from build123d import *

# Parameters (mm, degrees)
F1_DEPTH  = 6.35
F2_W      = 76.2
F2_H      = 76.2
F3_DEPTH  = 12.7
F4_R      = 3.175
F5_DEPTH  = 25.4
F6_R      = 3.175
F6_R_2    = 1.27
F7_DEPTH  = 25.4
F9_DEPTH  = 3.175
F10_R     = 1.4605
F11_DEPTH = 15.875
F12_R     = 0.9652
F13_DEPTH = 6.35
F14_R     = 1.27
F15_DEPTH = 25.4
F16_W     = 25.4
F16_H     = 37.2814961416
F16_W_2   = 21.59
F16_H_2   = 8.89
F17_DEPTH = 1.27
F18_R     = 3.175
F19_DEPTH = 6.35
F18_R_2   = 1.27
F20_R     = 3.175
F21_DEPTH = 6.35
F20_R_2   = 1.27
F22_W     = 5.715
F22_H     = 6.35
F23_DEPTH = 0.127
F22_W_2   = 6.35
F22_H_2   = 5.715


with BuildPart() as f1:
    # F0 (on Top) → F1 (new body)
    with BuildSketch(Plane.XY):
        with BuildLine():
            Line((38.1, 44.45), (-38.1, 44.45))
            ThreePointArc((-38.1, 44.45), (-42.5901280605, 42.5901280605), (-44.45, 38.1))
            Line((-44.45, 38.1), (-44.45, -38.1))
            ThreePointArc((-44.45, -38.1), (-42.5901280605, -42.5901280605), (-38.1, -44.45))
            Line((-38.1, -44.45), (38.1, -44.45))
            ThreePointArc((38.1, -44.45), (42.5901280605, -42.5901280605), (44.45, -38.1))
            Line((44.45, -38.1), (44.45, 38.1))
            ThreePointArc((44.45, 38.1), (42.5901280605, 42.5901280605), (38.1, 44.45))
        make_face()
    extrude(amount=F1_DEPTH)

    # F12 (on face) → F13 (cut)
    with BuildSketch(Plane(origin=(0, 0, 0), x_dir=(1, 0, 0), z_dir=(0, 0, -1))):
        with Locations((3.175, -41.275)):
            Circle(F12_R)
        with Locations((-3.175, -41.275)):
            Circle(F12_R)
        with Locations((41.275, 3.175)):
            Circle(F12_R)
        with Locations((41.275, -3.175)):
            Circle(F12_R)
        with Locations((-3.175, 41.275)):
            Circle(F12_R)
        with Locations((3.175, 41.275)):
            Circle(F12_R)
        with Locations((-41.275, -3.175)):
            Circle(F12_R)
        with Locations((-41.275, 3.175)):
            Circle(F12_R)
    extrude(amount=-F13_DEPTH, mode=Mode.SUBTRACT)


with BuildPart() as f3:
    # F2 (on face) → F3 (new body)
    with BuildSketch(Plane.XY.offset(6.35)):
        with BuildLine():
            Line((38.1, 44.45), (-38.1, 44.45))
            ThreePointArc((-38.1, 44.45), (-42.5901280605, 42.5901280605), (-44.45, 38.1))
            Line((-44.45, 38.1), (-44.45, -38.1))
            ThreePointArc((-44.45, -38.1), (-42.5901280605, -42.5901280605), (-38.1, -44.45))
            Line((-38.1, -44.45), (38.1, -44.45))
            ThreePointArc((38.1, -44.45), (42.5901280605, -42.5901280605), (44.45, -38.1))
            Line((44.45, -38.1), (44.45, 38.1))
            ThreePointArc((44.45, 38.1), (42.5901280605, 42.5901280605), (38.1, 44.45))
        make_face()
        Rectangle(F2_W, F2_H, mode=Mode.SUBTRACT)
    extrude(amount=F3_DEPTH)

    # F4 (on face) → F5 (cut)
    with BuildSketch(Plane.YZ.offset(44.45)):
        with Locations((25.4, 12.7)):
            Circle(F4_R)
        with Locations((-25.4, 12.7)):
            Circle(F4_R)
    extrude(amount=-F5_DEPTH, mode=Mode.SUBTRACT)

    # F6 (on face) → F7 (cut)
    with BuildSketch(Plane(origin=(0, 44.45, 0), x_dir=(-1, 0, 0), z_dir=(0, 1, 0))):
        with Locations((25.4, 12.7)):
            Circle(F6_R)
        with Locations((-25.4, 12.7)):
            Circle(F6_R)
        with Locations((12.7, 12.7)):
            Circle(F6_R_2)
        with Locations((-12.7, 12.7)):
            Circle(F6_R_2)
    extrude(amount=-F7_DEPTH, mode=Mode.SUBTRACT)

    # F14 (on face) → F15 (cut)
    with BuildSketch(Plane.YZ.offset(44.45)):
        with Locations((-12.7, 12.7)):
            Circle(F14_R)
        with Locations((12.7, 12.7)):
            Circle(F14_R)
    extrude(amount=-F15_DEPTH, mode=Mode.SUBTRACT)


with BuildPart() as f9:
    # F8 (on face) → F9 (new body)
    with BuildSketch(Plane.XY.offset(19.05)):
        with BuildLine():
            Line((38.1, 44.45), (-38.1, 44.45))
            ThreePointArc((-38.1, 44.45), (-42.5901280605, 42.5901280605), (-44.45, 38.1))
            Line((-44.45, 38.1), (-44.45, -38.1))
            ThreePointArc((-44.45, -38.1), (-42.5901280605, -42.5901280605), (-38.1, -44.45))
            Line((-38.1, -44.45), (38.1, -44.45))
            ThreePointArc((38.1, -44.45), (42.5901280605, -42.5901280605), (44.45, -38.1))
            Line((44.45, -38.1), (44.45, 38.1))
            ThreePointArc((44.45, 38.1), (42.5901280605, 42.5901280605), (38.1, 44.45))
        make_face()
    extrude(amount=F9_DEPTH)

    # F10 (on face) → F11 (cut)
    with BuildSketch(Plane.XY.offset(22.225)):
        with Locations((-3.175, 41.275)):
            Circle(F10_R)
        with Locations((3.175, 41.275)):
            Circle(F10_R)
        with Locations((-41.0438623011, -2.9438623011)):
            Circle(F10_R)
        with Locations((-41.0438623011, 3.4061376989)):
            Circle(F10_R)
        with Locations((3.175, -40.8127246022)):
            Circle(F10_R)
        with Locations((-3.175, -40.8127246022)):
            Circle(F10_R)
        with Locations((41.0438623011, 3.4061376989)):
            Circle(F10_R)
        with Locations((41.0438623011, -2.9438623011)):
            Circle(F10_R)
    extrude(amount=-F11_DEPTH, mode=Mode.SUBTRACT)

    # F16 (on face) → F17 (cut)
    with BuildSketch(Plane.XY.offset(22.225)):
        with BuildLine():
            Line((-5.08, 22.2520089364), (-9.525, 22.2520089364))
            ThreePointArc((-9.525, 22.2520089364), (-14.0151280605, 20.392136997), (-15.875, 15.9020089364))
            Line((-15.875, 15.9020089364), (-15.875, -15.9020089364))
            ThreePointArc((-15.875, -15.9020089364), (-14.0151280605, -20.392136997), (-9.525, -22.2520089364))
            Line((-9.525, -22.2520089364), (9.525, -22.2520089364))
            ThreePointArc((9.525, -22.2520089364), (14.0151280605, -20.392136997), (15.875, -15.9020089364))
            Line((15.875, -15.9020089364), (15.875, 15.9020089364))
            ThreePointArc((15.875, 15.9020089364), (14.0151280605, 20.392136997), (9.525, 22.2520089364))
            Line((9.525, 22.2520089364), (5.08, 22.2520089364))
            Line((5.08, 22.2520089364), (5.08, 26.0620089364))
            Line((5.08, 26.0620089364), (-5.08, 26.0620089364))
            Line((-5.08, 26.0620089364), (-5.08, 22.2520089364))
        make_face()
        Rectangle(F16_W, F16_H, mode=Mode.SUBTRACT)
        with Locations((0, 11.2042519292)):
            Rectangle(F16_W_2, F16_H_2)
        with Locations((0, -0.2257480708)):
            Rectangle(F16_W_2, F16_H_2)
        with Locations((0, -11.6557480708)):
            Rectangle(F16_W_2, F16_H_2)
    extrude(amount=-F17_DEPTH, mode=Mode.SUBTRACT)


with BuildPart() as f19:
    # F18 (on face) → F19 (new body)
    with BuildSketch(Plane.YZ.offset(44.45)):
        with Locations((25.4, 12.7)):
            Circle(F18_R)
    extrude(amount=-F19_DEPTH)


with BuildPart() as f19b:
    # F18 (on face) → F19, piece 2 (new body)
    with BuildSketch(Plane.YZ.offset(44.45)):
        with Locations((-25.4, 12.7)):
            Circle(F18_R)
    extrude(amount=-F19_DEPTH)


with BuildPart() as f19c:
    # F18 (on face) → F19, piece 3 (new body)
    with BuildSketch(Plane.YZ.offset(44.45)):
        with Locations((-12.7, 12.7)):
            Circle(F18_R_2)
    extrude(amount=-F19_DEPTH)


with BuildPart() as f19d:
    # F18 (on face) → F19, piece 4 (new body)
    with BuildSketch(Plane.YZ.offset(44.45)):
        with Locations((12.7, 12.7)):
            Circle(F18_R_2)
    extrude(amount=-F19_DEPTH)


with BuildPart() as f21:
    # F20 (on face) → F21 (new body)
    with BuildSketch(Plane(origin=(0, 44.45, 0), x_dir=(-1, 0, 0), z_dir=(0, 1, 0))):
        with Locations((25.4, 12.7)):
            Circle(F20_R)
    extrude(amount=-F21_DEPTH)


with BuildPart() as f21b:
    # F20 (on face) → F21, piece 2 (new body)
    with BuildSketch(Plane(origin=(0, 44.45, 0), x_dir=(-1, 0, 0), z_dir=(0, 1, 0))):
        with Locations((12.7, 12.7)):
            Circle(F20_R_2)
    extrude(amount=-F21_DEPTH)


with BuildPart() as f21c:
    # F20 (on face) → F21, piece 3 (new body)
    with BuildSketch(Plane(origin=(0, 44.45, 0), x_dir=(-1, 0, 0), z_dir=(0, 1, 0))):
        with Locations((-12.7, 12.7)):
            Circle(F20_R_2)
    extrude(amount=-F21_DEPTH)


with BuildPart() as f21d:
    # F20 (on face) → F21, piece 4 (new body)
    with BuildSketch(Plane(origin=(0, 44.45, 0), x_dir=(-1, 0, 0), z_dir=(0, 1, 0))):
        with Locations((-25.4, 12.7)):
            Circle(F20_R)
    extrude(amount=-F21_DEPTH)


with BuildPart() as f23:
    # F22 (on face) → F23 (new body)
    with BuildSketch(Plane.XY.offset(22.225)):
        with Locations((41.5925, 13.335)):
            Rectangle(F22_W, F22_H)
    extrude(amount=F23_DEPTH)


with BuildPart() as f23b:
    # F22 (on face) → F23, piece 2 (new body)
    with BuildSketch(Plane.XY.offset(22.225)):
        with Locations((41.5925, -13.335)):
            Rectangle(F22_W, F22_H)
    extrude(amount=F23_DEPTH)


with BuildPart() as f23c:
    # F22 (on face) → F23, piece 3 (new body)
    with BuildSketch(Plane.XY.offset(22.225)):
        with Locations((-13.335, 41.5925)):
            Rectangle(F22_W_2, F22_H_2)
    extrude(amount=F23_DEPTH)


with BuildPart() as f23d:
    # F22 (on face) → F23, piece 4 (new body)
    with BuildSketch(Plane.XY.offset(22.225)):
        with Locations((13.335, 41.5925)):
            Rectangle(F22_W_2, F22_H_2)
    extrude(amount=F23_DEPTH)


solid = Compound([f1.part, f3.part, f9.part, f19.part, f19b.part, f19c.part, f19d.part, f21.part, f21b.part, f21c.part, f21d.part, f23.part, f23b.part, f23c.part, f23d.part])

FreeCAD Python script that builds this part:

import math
import FreeCAD as App
import Part
import Sketcher

V = App.Vector
Q = App.Units.Quantity


def add_polygon(sketch, points):
    """Adds a closed chain of lines whose ends are joined by coincident constraints."""
    first, n = sketch.GeometryCount, len(points)
    for a, b in zip(points, points[1:] + points[:1]):
        sketch.addGeometry(Part.LineSegment(App.Vector(*a, 0), App.Vector(*b, 0)), False)
    for i in range(n):
        sketch.addConstraint(Sketcher.Constraint("Coincident", first + i, 2, first + (i + 1) % n, 1))

doc = App.newDocument("Part")
body = doc.addObject("PartDesign::Body", "Body")

sketch1 = body.newObject("Sketcher::SketchObject", "Sketch")
sketch1.AttachmentSupport = (doc.getObject("XY_Plane"), [""])
sketch1.MapMode = "FlatFace"
sketch1.addGeometry([
    Part.LineSegment(V(38.1, 44.45, 0), V(-38.1, 44.45, 0)),
    Part.ArcOfCircle(Part.Circle(V(-38.1, 38.1, 0), V(0, 0, 1), 6.35), math.radians(90), math.radians(180)),
    Part.LineSegment(V(-44.45, 38.1, 0), V(-44.45, -38.1, 0)),
    Part.ArcOfCircle(Part.Circle(V(-38.1, -38.1, 0), V(0, 0, 1), 6.35), math.radians(180), math.radians(270)),
    Part.LineSegment(V(-38.1, -44.45, 0), V(38.1, -44.45, 0)),
    Part.ArcOfCircle(Part.Circle(V(38.1, -38.1, 0), V(0, 0, 1), 6.35), math.radians(-90), math.radians(0)),
    Part.LineSegment(V(44.45, -38.1, 0), V(44.45, 38.1, 0)),
    Part.ArcOfCircle(Part.Circle(V(38.1, 38.1, 0), V(0, 0, 1), 6.35), math.radians(0), math.radians(90)),
], False)
sketch1.addConstraint([
    Sketcher.Constraint("Tangent", 0, 2, 1, 1),
    Sketcher.Constraint("Tangent", 1, 2, 2, 1),
    Sketcher.Constraint("Tangent", 2, 2, 3, 1),
    Sketcher.Constraint("Tangent", 3, 2, 4, 1),
    Sketcher.Constraint("Tangent", 4, 2, 5, 1),
    Sketcher.Constraint("Tangent", 5, 2, 6, 1),
    Sketcher.Constraint("Tangent", 6, 2, 7, 1),
    Sketcher.Constraint("Tangent", 7, 2, 0, 1),
    Sketcher.Constraint("Horizontal", 0),
    Sketcher.Constraint("Vertical", 2),
    Sketcher.Constraint("Horizontal", 4),
    Sketcher.Constraint("Vertical", 6),
    Sketcher.Constraint("Equal", 1, 3),
    Sketcher.Constraint("Equal", 3, 5),
    Sketcher.Constraint("Equal", 5, 7),
    Sketcher.Constraint("Symmetric", 1, 3, 5, 3, -1, 1),
    Sketcher.Constraint("Equal", 4, 2),
    Sketcher.Constraint("DistanceX", 0, 2, 0, 1, Q("3 in")),
    Sketcher.Constraint("Radius", 1, Q("0.25 in")),
])
pad1 = body.newObject("PartDesign::Pad", "Pad")
pad1.Profile = sketch1
pad1.Length = Q("0.25 in")

sketch2 = body.newObject("Sketcher::SketchObject", "Sketch001")
sketch2.AttachmentSupport = (doc.getObject("XY_Plane"), [""])
sketch2.MapMode = "FlatFace"
sketch2.addGeometry([
    Part.Circle(V(3.175, 41.275, 0), V(0, 0, 1), 0.9652),
    Part.Circle(V(-3.175, 41.275, 0), V(0, 0, 1), 0.9652),
    Part.Circle(V(41.275, -3.175, 0), V(0, 0, 1), 0.9652),
    Part.Circle(V(41.275, 3.175, 0), V(0, 0, 1), 0.9652),
    Part.Circle(V(-3.175, -41.275, 0), V(0, 0, 1), 0.9652),
    Part.Circle(V(3.175, -41.275, 0), V(0, 0, 1), 0.9652),
    Part.Circle(V(-41.275, 3.175, 0), V(0, 0, 1), 0.9652),
    Part.Circle(V(-41.275, -3.175, 0), V(0, 0, 1), 0.9652),
], False)
sketch2.addConstraint([
    Sketcher.Constraint("Equal", 0, 1),
    Sketcher.Constraint("Equal", 1, 2),
    Sketcher.Constraint("Equal", 2, 3),
    Sketcher.Constraint("Equal", 3, 4),
    Sketcher.Constraint("Equal", 4, 5),
    Sketcher.Constraint("Equal", 5, 6),
    Sketcher.Constraint("Equal", 6, 7),
    Sketcher.Constraint("Symmetric", 0, 3, 4, 3, -1, 1),
    Sketcher.Constraint("Symmetric", 1, 3, 5, 3, -1, 1),
    Sketcher.Constraint("Symmetric", 2, 3, 6, 3, -1, 1),
    Sketcher.Constraint("Symmetric", 3, 3, 7, 3, -1, 1),
    Sketcher.Constraint("Symmetric", 0, 3, 1, 3, -2),
    Sketcher.Constraint("Symmetric", 3, 3, 6, 3, -2),
    Sketcher.Constraint("Diameter", 0, Q("0.076 in")),
    Sketcher.Constraint("DistanceX", 0, 3, 2, 3, Q("1.5 in")),
    Sketcher.Constraint("DistanceY", 3, 3, 0, 3, Q("1.5 in")),
    Sketcher.Constraint("DistanceX", 1, 3, 0, 3, Q("0.25 in")),
    Sketcher.Constraint("DistanceY", 2, 3, 0, 3, Q("1.75 in")),
])
pocket1 = body.newObject("PartDesign::Pocket", "Pocket")
pocket1.Profile = sketch2
pocket1.Length = Q("0.25 in")
pocket1.Reversed = True
body2 = doc.addObject("PartDesign::Body", "Body001")

sketch3 = body2.newObject("Sketcher::SketchObject", "Sketch002")
sketch3.AttachmentSupport = (doc.getObject("XY_Plane001"), [""])
sketch3.MapMode = "FlatFace"
sketch3.AttachmentOffset = App.Placement(V(0, 0, 0.25 * 25.4), App.Rotation())
sketch3.addGeometry(Part.LineSegment(V(38.1, 44.45, 0), V(-38.1, 44.45, 0)), False)
sketch3.addGeometry(Part.ArcOfCircle(Part.Circle(V(-38.1, 38.1, 0), V(0, 0, 1), 6.35), math.radians(90), math.radians(180)), False)
sketch3.addGeometry(Part.LineSegment(V(-44.45, 38.1, 0), V(-44.45, -38.1, 0)), False)
sketch3.addGeometry(Part.ArcOfCircle(Part.Circle(V(-38.1, -38.1, 0), V(0, 0, 1), 6.35), math.radians(180), math.radians(270)), False)
sketch3.addGeometry(Part.LineSegment(V(-38.1, -44.45, 0), V(38.1, -44.45, 0)), False)
sketch3.addGeometry(Part.ArcOfCircle(Part.Circle(V(38.1, -38.1, 0), V(0, 0, 1), 6.35), math.radians(-90), math.radians(0)), False)
sketch3.addGeometry(Part.LineSegment(V(44.45, -38.1, 0), V(44.45, 38.1, 0)), False)
sketch3.addGeometry(Part.ArcOfCircle(Part.Circle(V(38.1, 38.1, 0), V(0, 0, 1), 6.35), math.radians(0), math.radians(90)), False)
add_polygon(sketch3, [(38.1, -38.1), (-38.1, -38.1), (-38.1, 38.1), (38.1, 38.1)])
sketch3.addConstraint([
    Sketcher.Constraint("Tangent", 0, 2, 1, 1),
    Sketcher.Constraint("Tangent", 1, 2, 2, 1),
    Sketcher.Constraint("Tangent", 2, 2, 3, 1),
    Sketcher.Constraint("Tangent", 3, 2, 4, 1),
    Sketcher.Constraint("Tangent", 4, 2, 5, 1),
    Sketcher.Constraint("Tangent", 5, 2, 6, 1),
    Sketcher.Constraint("Tangent", 6, 2, 7, 1),
    Sketcher.Constraint("Tangent", 7, 2, 0, 1),
    Sketcher.Constraint("Horizontal", 0),
    Sketcher.Constraint("Vertical", 2),
    Sketcher.Constraint("Horizontal", 4),
    Sketcher.Constraint("Vertical", 6),
    Sketcher.Constraint("Horizontal", 8),
    Sketcher.Constraint("Vertical", 9),
    Sketcher.Constraint("Horizontal", 10),
    Sketcher.Constraint("Vertical", 11),
    Sketcher.Constraint("Coincident", 8, 2, 3, 3),
    Sketcher.Constraint("Coincident", 9, 2, 1, 3),
    Sketcher.Constraint("Coincident", 10, 2, 7, 3),
    Sketcher.Constraint("Equal", 3, 5),
    Sketcher.Constraint("Symmetric", 1, 3, 5, 3, -1, 1),
    Sketcher.Constraint("Equal", 10, 2),
    Sketcher.Constraint("DistanceX", 0, 2, 0, 1, Q("3 in")),
    Sketcher.Constraint("Radius", 1, Q("0.25 in")),
])
pad2 = body2.newObject("PartDesign::Pad", "Pad001")
pad2.Profile = sketch3
pad2.Length = Q("0.5 in")

sketch4 = body2.newObject("Sketcher::SketchObject", "Sketch003")
sketch4.AttachmentSupport = (doc.getObject("YZ_Plane001"), [""])
sketch4.MapMode = "FlatFace"
sketch4.AttachmentOffset = App.Placement(V(0, 0, 1.75 * 25.4), App.Rotation())
sketch4.addGeometry([
    Part.Circle(V(25.4, 12.7, 0), V(0, 0, 1), 3.175),
    Part.Circle(V(-25.4, 12.7, 0), V(0, 0, 1), 3.175),
], False)
sketch4.addConstraint([
    Sketcher.Constraint("Equal", 0, 1),
    Sketcher.Constraint("Symmetric", 0, 3, 1, 3, -2),
    Sketcher.Constraint("Diameter", 0, Q("0.25 in")),
    Sketcher.Constraint("DistanceX", -1, 1, 0, 3, Q("1 in")),
    Sketcher.Constraint("DistanceY", -1, 1, 0, 3, Q("0.5 in")),
])
pocket2 = body2.newObject("PartDesign::Pocket", "Pocket001")
pocket2.Profile = sketch4
pocket2.Length = Q("1 in")

sketch5 = body2.newObject("Sketcher::SketchObject", "Sketch004")
sketch5.AttachmentSupport = (doc.getObject("XZ_Plane001"), [""])
sketch5.MapMode = "FlatFace"
sketch5.AttachmentOffset = App.Placement(V(0, 0, -1.75 * 25.4), App.Rotation())
sketch5.addGeometry([
    Part.Circle(V(-25.4, 12.7, 0), V(0, 0, 1), 3.175),
    Part.Circle(V(25.4, 12.7, 0), V(0, 0, 1), 3.175),
    Part.Circle(V(-12.7, 12.7, 0), V(0, 0, 1), 1.27),
    Part.Circle(V(12.7, 12.7, 0), V(0, 0, 1), 1.27),
], False)
sketch5.addConstraint([
    Sketcher.Constraint("Equal", 0, 1),
    Sketcher.Constraint("Equal", 2, 3),
    Sketcher.Constraint("Symmetric", 0, 3, 1, 3, -2),
    Sketcher.Constraint("Symmetric", 2, 3, 3, 3, -2),
    Sketcher.Constraint("Horizontal", 1, 3, 2, 3),
    Sketcher.Constraint("Diameter", 2, Q("0.1 in")),
    Sketcher.Constraint("Diameter", 0, Q("0.25 in")),
    Sketcher.Constraint("DistanceX", 0, 3, -1, 1, Q("1 in")),
    Sketcher.Constraint("DistanceX", 2, 3, 3, 3, Q("1 in")),
    Sketcher.Constraint("DistanceY", -1, 1, 0, 3, Q("0.5 in")),
])
pocket3 = body2.newObject("PartDesign::Pocket", "Pocket002")
pocket3.Profile = sketch5
pocket3.Length = Q("1 in")
pocket3.Reversed = True

sketch6 = body2.newObject("Sketcher::SketchObject", "Sketch005")
sketch6.AttachmentSupport = (doc.getObject("YZ_Plane001"), [""])
sketch6.MapMode = "FlatFace"
sketch6.AttachmentOffset = App.Placement(V(0, 0, 1.75 * 25.4), App.Rotation())
sketch6.addGeometry([
    Part.Circle(V(-12.7, 12.7, 0), V(0, 0, 1), 1.27),
    Part.Circle(V(12.7, 12.7, 0), V(0, 0, 1), 1.27),
], False)
sketch6.addConstraint([
    Sketcher.Constraint("Equal", 0, 1),
    Sketcher.Constraint("Symmetric", 0, 3, 1, 3, -2),
    Sketcher.Constraint("Diameter", 0, Q("0.1 in")),
    Sketcher.Constraint("DistanceX", 0, 3, 1, 3, Q("1 in")),
    Sketcher.Constraint("DistanceY", -1, 1, 0, 3, Q("0.5 in")),
])
pocket4 = body2.newObject("PartDesign::Pocket", "Pocket003")
pocket4.Profile = sketch6
pocket4.Length = Q("1 in")
body3 = doc.addObject("PartDesign::Body", "Body002")

sketch7 = body3.newObject("Sketcher::SketchObject", "Sketch006")
sketch7.AttachmentSupport = (doc.getObject("XY_Plane002"), [""])
sketch7.MapMode = "FlatFace"
sketch7.AttachmentOffset = App.Placement(V(0, 0, 0.75 * 25.4), App.Rotation())
sketch7.addGeometry([
    Part.LineSegment(V(38.1, 44.45, 0), V(-38.1, 44.45, 0)),
    Part.ArcOfCircle(Part.Circle(V(-38.1, 38.1, 0), V(0, 0, 1), 6.35), math.radians(90), math.radians(180)),
    Part.LineSegment(V(-44.45, 38.1, 0), V(-44.45, -38.1, 0)),
    Part.ArcOfCircle(Part.Circle(V(-38.1, -38.1, 0), V(0, 0, 1), 6.35), math.radians(180), math.radians(270)),
    Part.LineSegment(V(-38.1, -44.45, 0), V(38.1, -44.45, 0)),
    Part.ArcOfCircle(Part.Circle(V(38.1, -38.1, 0), V(0, 0, 1), 6.35), math.radians(-90), math.radians(0)),
    Part.LineSegment(V(44.45, -38.1, 0), V(44.45, 38.1, 0)),
    Part.ArcOfCircle(Part.Circle(V(38.1, 38.1, 0), V(0, 0, 1), 6.35), math.radians(0), math.radians(90)),
], False)
sketch7.addConstraint([
    Sketcher.Constraint("Tangent", 0, 2, 1, 1),
    Sketcher.Constraint("Tangent", 1, 2, 2, 1),
    Sketcher.Constraint("Tangent", 2, 2, 3, 1),
    Sketcher.Constraint("Tangent", 3, 2, 4, 1),
    Sketcher.Constraint("Tangent", 4, 2, 5, 1),
    Sketcher.Constraint("Tangent", 5, 2, 6, 1),
    Sketcher.Constraint("Tangent", 6, 2, 7, 1),
    Sketcher.Constraint("Tangent", 7, 2, 0, 1),
    Sketcher.Constraint("Horizontal", 0),
    Sketcher.Constraint("Vertical", 2),
    Sketcher.Constraint("Horizontal", 4),
    Sketcher.Constraint("Vertical", 6),
    Sketcher.Constraint("Equal", 1, 3),
    Sketcher.Constraint("Equal", 3, 5),
    Sketcher.Constraint("Equal", 5, 7),
    Sketcher.Constraint("Symmetric", 1, 3, 5, 3, -1, 1),
    Sketcher.Constraint("Equal", 4, 2),
    Sketcher.Constraint("DistanceX", 0, 2, 0, 1, Q("3 in")),
    Sketcher.Constraint("Radius", 1, Q("0.25 in")),
])
pad3 = body3.newObject("PartDesign::Pad", "Pad002")
pad3.Profile = sketch7
pad3.Length = Q("0.125 in")

sketch8 = body3.newObject("Sketcher::SketchObject", "Sketch007")
sketch8.AttachmentSupport = (doc.getObject("XY_Plane002"), [""])
sketch8.MapMode = "FlatFace"
sketch8.AttachmentOffset = App.Placement(V(0, 0, 0.875 * 25.4), App.Rotation())
sketch8.addGeometry([
    Part.Circle(V(-3.175, 41.275, 0), V(0, 0, 1), 1.4605),
    Part.Circle(V(3.175, 41.275, 0), V(0, 0, 1), 1.4605),
    Part.Circle(V(-41.043862, -2.943862, 0), V(0, 0, 1), 1.4605),
    Part.Circle(V(-41.043862, 3.406138, 0), V(0, 0, 1), 1.4605),
    Part.Circle(V(3.175, -40.812725, 0), V(0, 0, 1), 1.4605),
    Part.Circle(V(-3.175, -40.812725, 0), V(0, 0, 1), 1.4605),
    Part.Circle(V(41.043862, 3.406138, 0), V(0, 0, 1), 1.4605),
    Part.Circle(V(41.043862, -2.943862, 0), V(0, 0, 1), 1.4605),
], False)
sketch8.addConstraint([
    Sketcher.Constraint("Equal", 0, 1),
    Sketcher.Constraint("Equal", 1, 2),
    Sketcher.Constraint("Equal", 2, 3),
    Sketcher.Constraint("Equal", 3, 4),
    Sketcher.Constraint("Equal", 4, 5),
    Sketcher.Constraint("Equal", 5, 6),
    Sketcher.Constraint("Equal", 6, 7),
    Sketcher.Constraint("Symmetric", 0, 3, 1, 3, -2),
    Sketcher.Constraint("Symmetric", 4, 3, 5, 3, -2),
    Sketcher.Constraint("Symmetric", 3, 3, 6, 3, -2),
    Sketcher.Constraint("Symmetric", 2, 3, 7, 3, -2),
    Sketcher.Constraint("Vertical", 2, 3, 3, 3),
    Sketcher.Constraint("Vertical", 1, 3, 4, 3),
    Sketcher.Constraint("Diameter", 0, Q("0.115 in")),
    Sketcher.Constraint("DistanceX", 0, 3, 1, 3, Q("0.25 in")),
    Sketcher.Constraint("DistanceY", 2, 3, 3, 3, Q("0.25 in")),
    Sketcher.Constraint("DistanceY", -1, 1, 0, 3, Q("1.625 in")),
    Sketcher.Constraint("DistanceX", 2, 3, -1, 1, Q("1.6159001 in")),
    Sketcher.Constraint("DistanceY", 2, 3, -1, 1, Q("0.1159001 in")),
    Sketcher.Constraint("DistanceY", 4, 3, -1, 1, Q("1.6068002 in")),
])
pocket5 = body3.newObject("PartDesign::Pocket", "Pocket004")
pocket5.Profile = sketch8
pocket5.Length = Q("0.625 in")

sketch9 = body3.newObject("Sketcher::SketchObject", "Sketch008")
sketch9.AttachmentSupport = (doc.getObject("XY_Plane002"), [""])
sketch9.MapMode = "FlatFace"
sketch9.AttachmentOffset = App.Placement(V(0, 0, 0.875 * 25.4), App.Rotation())
sketch9.addGeometry(Part.LineSegment(V(-5.08, 22.252009, 0), V(-9.525, 22.252009, 0)), False)
sketch9.addGeometry(Part.ArcOfCircle(Part.Circle(V(-9.525, 15.902009, 0), V(0, 0, 1), 6.35), math.radians(90), math.radians(180)), False)
sketch9.addGeometry(Part.LineSegment(V(-15.875, 15.902009, 0), V(-15.875, -15.902009, 0)), False)
sketch9.addGeometry(Part.ArcOfCircle(Part.Circle(V(-9.525, -15.902009, 0), V(0, 0, 1), 6.35), math.radians(180), math.radians(270)), False)
sketch9.addGeometry(Part.LineSegment(V(-9.525, -22.252009, 0), V(9.525, -22.252009, 0)), False)
sketch9.addGeometry(Part.ArcOfCircle(Part.Circle(V(9.525, -15.902009, 0), V(0, 0, 1), 6.35), math.radians(-90), math.radians(0)), False)
sketch9.addGeometry(Part.LineSegment(V(15.875, -15.902009, 0), V(15.875, 15.902009, 0)), False)
sketch9.addGeometry(Part.ArcOfCircle(Part.Circle(V(9.525, 15.902009, 0), V(0, 0, 1), 6.35), math.radians(0), math.radians(90)), False)
sketch9.addGeometry(Part.LineSegment(V(9.525, 22.252009, 0), V(5.08, 22.252009, 0)), False)
sketch9.addGeometry(Part.LineSegment(V(5.08, 22.252009, 0), V(5.08, 26.062009, 0)), False)
sketch9.addGeometry(Part.LineSegment(V(5.08, 26.062009, 0), V(-5.08, 26.062009, 0)), False)
sketch9.addGeometry(Part.LineSegment(V(-5.08, 26.062009, 0), V(-5.08, 22.252009, 0)), False)
add_polygon(sketch9, [(12.7, -18.640748), (-12.7, -18.640748), (-12.7, 18.640748), (12.7, 18.640748)])
add_polygon(sketch9, [(-10.795, 15.649252), (-10.795, 6.759252), (10.795, 6.759252), (10.795, 15.649252)])
add_polygon(sketch9, [(-10.795, 4.219252), (-10.795, -4.670748), (10.795, -4.670748), (10.795, 4.219252)])
add_polygon(sketch9, [(-10.795, -7.210748), (-10.795, -16.100748), (10.795, -16.100748), (10.795, -7.210748)])
sketch9.addConstraint([
    Sketcher.Constraint("Tangent", 0, 2, 1, 1),
    Sketcher.Constraint("Tangent", 1, 2, 2, 1),
    Sketcher.Constraint("Tangent", 2, 2, 3, 1),
    Sketcher.Constraint("Tangent", 3, 2, 4, 1),
    Sketcher.Constraint("Tangent", 4, 2, 5, 1),
    Sketcher.Constraint("Tangent", 5, 2, 6, 1),
    Sketcher.Constraint("Tangent", 6, 2, 7, 1),
    Sketcher.Constraint("Tangent", 7, 2, 8, 1),
    Sketcher.Constraint("Coincident", 8, 2, 9, 1),
    Sketcher.Constraint("Coincident", 9, 2, 10, 1),
    Sketcher.Constraint("Coincident", 10, 2, 11, 1),
    Sketcher.Constraint("Coincident", 11, 2, 0, 1),
    Sketcher.Constraint("Horizontal", 0),
    Sketcher.Constraint("Vertical", 2),
    Sketcher.Constraint("Horizontal", 4),
    Sketcher.Constraint("Vertical", 6),
    Sketcher.Constraint("Horizontal", 8),
    Sketcher.Constraint("Vertical", 9),
    Sketcher.Constraint("Horizontal", 10),
    Sketcher.Constraint("Vertical", 11),
    Sketcher.Constraint("Horizontal", 12),
    Sketcher.Constraint("Vertical", 13),
    Sketcher.Constraint("Horizontal", 14),
    Sketcher.Constraint("Vertical", 15),
    Sketcher.Constraint("Vertical", 16),
    Sketcher.Constraint("Horizontal", 17),
    Sketcher.Constraint("Vertical", 18),
    Sketcher.Constraint("Horizontal", 19),
    Sketcher.Constraint("Vertical", 20),
    Sketcher.Constraint("Horizontal", 21),
    Sketcher.Constraint("Vertical", 22),
    Sketcher.Constraint("Horizontal", 23),
    Sketcher.Constraint("Vertical", 24),
    Sketcher.Constraint("Horizontal", 25),
    Sketcher.Constraint("Vertical", 26),
    Sketcher.Constraint("Horizontal", 27),
    Sketcher.Constraint("Equal", 1, 3),
    Sketcher.Constraint("Equal", 3, 5),
    Sketcher.Constraint("Equal", 5, 7),
    Sketcher.Constraint("Symmetric", 1, 3, 5, 3, -1, 1),
    Sketcher.Constraint("Symmetric", 12, 2, 14, 2, -1, 1),
    Sketcher.Constraint("Symmetric", 8, 2, 11, 2, -2),
    Sketcher.Constraint("Vertical", 19, 2, 20, 2),
    Sketcher.Constraint("Vertical", 18, 2, 21, 2),
    Sketcher.Constraint("Vertical", 23, 2, 24, 2),
    Sketcher.Constraint("Vertical", 22, 2, 25, 2),
    Sketcher.Constraint("Equal", 18, 20),
    Sketcher.Constraint("Equal", 22, 24),
    Sketcher.Constraint("DistanceX", 12, 2, 12, 1, Q("1 in")),
    Sketcher.Constraint("Radius", 1, Q("0.25 in")),
    Sketcher.Constraint("DistanceX", 10, 2, 10, 1, Q("0.4 in")),
    Sketcher.Constraint("DistanceX", 1, 2, 7, 3, Q("1 in")),
    Sketcher.Constraint("DistanceX", 17, 1, 17, 2, Q("0.85 in")),
    Sketcher.Constraint("DistanceY", 9, 1, 9, 2, Q("0.15 in")),
    Sketcher.Constraint("DistanceY", 16, 2, 16, 1, Q("0.35 in")),
    Sketcher.Constraint("DistanceX", 1, 2, 16, 2, Q("0.2 in")),
    Sketcher.Constraint("DistanceY", 22, 2, 17, 2, Q("0.1 in")),
    Sketcher.Constraint("DistanceY", 12, 2, 24, 2, Q("0.1 in")),
    Sketcher.Constraint("DistanceY", 26, 2, 21, 2, Q("0.1 in")),
    Sketcher.Constraint("DistanceY", 2, 2, 2, 1, 31.804018),
    Sketcher.Constraint("DistanceY", 13, 1, 13, 2, 37.281496),
])
pocket6 = body3.newObject("PartDesign::Pocket", "Pocket005")
pocket6.Profile = sketch9
pocket6.Length = Q("0.05 in")
body4 = doc.addObject("PartDesign::Body", "Body003")

sketch10 = body4.newObject("Sketcher::SketchObject", "Sketch009")
sketch10.AttachmentSupport = (doc.getObject("YZ_Plane003"), [""])
sketch10.MapMode = "FlatFace"
sketch10.AttachmentOffset = App.Placement(V(0, 0, 1.75 * 25.4), App.Rotation())
sketch10.addGeometry(Part.Circle(V(25.4, 12.7, 0), V(0, 0, 1), 3.175), False)
sketch10.addConstraint([
    Sketcher.Constraint("Diameter", 0, Q("0.25 in")),
    Sketcher.Constraint("DistanceX", -1, 1, 0, 3, Q("1 in")),
    Sketcher.Constraint("DistanceY", -1, 1, 0, 3, Q("0.5 in")),
])
pad4 = body4.newObject("PartDesign::Pad", "Pad003")
pad4.Profile = sketch10
pad4.Length = Q("0.25 in")
pad4.Reversed = True
body5 = doc.addObject("PartDesign::Body", "Body004")

sketch11 = body5.newObject("Sketcher::SketchObject", "Sketch010")
sketch11.AttachmentSupport = (doc.getObject("YZ_Plane004"), [""])
sketch11.MapMode = "FlatFace"
sketch11.AttachmentOffset = App.Placement(V(0, 0, 1.75 * 25.4), App.Rotation())
sketch11.addGeometry(Part.Circle(V(-25.4, 12.7, 0), V(0, 0, 1), 3.175), False)
sketch11.addConstraint([
    Sketcher.Constraint("Diameter", 0, Q("0.25 in")),
    Sketcher.Constraint("DistanceX", 0, 3, -1, 1, Q("1 in")),
    Sketcher.Constraint("DistanceY", -1, 1, 0, 3, Q("0.5 in")),
])
pad5 = body5.newObject("PartDesign::Pad", "Pad004")
pad5.Profile = sketch11
pad5.Length = Q("0.25 in")
pad5.Reversed = True
body6 = doc.addObject("PartDesign::Body", "Body005")

sketch12 = body6.newObject("Sketcher::SketchObject", "Sketch011")
sketch12.AttachmentSupport = (doc.getObject("YZ_Plane005"), [""])
sketch12.MapMode = "FlatFace"
sketch12.AttachmentOffset = App.Placement(V(0, 0, 1.75 * 25.4), App.Rotation())
sketch12.addGeometry(Part.Circle(V(-12.7, 12.7, 0), V(0, 0, 1), 1.27), False)
sketch12.addConstraint([
    Sketcher.Constraint("Diameter", 0, Q("0.1 in")),
    Sketcher.Constraint("DistanceX", 0, 3, -1, 1, Q("0.5 in")),
    Sketcher.Constraint("DistanceY", -1, 1, 0, 3, Q("0.5 in")),
])
pad6 = body6.newObject("PartDesign::Pad", "Pad005")
pad6.Profile = sketch12
pad6.Length = Q("0.25 in")
pad6.Reversed = True
body7 = doc.addObject("PartDesign::Body", "Body006")

sketch13 = body7.newObject("Sketcher::SketchObject", "Sketch012")
sketch13.AttachmentSupport = (doc.getObject("YZ_Plane006"), [""])
sketch13.MapMode = "FlatFace"
sketch13.AttachmentOffset = App.Placement(V(0, 0, 1.75 * 25.4), App.Rotation())
sketch13.addGeometry(Part.Circle(V(12.7, 12.7, 0), V(0, 0, 1), 1.27), False)
sketch13.addConstraint([
    Sketcher.Constraint("Diameter", 0, Q("0.1 in")),
    Sketcher.Constraint("DistanceX", -1, 1, 0, 3, Q("0.5 in")),
    Sketcher.Constraint("DistanceY", -1, 1, 0, 3, Q("0.5 in")),
])
pad7 = body7.newObject("PartDesign::Pad", "Pad006")
pad7.Profile = sketch13
pad7.Length = Q("0.25 in")
pad7.Reversed = True
body8 = doc.addObject("PartDesign::Body", "Body007")

sketch14 = body8.newObject("Sketcher::SketchObject", "Sketch013")
sketch14.AttachmentSupport = (doc.getObject("XZ_Plane007"), [""])
sketch14.MapMode = "FlatFace"
sketch14.AttachmentOffset = App.Placement(V(0, 0, -1.75 * 25.4), App.Rotation())
sketch14.addGeometry(Part.Circle(V(-25.4, 12.7, 0), V(0, 0, 1), 3.175), False)
sketch14.addConstraint([
    Sketcher.Constraint("Diameter", 0, Q("0.25 in")),
    Sketcher.Constraint("DistanceX", 0, 3, -1, 1, Q("1 in")),
    Sketcher.Constraint("DistanceY", -1, 1, 0, 3, Q("0.5 in")),
])
pad8 = body8.newObject("PartDesign::Pad", "Pad007")
pad8.Profile = sketch14
pad8.Length = Q("0.25 in")
body9 = doc.addObject("PartDesign::Body", "Body008")

sketch15 = body9.newObject("Sketcher::SketchObject", "Sketch014")
sketch15.AttachmentSupport = (doc.getObject("XZ_Plane008"), [""])
sketch15.MapMode = "FlatFace"
sketch15.AttachmentOffset = App.Placement(V(0, 0, -1.75 * 25.4), App.Rotation())
sketch15.addGeometry(Part.Circle(V(-12.7, 12.7, 0), V(0, 0, 1), 1.27), False)
sketch15.addConstraint([
    Sketcher.Constraint("Diameter", 0, Q("0.1 in")),
    Sketcher.Constraint("DistanceX", 0, 3, -1, 1, Q("0.5 in")),
    Sketcher.Constraint("DistanceY", -1, 1, 0, 3, Q("0.5 in")),
])
pad9 = body9.newObject("PartDesign::Pad", "Pad008")
pad9.Profile = sketch15
pad9.Length = Q("0.25 in")
body10 = doc.addObject("PartDesign::Body", "Body009")

sketch16 = body10.newObject("Sketcher::SketchObject", "Sketch015")
sketch16.AttachmentSupport = (doc.getObject("XZ_Plane009"), [""])
sketch16.MapMode = "FlatFace"
sketch16.AttachmentOffset = App.Placement(V(0, 0, -1.75 * 25.4), App.Rotation())
sketch16.addGeometry(Part.Circle(V(12.7, 12.7, 0), V(0, 0, 1), 1.27), False)
sketch16.addConstraint([
    Sketcher.Constraint("Diameter", 0, Q("0.1 in")),
    Sketcher.Constraint("DistanceX", -1, 1, 0, 3, Q("0.5 in")),
    Sketcher.Constraint("DistanceY", -1, 1, 0, 3, Q("0.5 in")),
])
pad10 = body10.newObject("PartDesign::Pad", "Pad009")
pad10.Profile = sketch16
pad10.Length = Q("0.25 in")
body11 = doc.addObject("PartDesign::Body", "Body010")

sketch17 = body11.newObject("Sketcher::SketchObject", "Sketch016")
sketch17.AttachmentSupport = (doc.getObject("XZ_Plane010"), [""])
sketch17.MapMode = "FlatFace"
sketch17.AttachmentOffset = App.Placement(V(0, 0, -1.75 * 25.4), App.Rotation())
sketch17.addGeometry(Part.Circle(V(25.4, 12.7, 0), V(0, 0, 1), 3.175), False)
sketch17.addConstraint([
    Sketcher.Constraint("Diameter", 0, Q("0.25 in")),
    Sketcher.Constraint("DistanceX", -1, 1, 0, 3, Q("1 in")),
    Sketcher.Constraint("DistanceY", -1, 1, 0, 3, Q("0.5 in")),
])
pad11 = body11.newObject("PartDesign::Pad", "Pad010")
pad11.Profile = sketch17
pad11.Length = Q("0.25 in")
body12 = doc.addObject("PartDesign::Body", "Body011")

sketch18 = body12.newObject("Sketcher::SketchObject", "Sketch017")
sketch18.AttachmentSupport = (doc.getObject("XY_Plane011"), [""])
sketch18.MapMode = "FlatFace"
sketch18.AttachmentOffset = App.Placement(V(0, 0, 0.875 * 25.4), App.Rotation())
add_polygon(sketch18, [(38.735, 16.51), (38.735, 10.16), (44.45, 10.16), (44.45, 16.51)])
sketch18.addConstraint([
    Sketcher.Constraint("Vertical", 0),
    Sketcher.Constraint("Horizontal", 1),
    Sketcher.Constraint("Vertical", 2),
    Sketcher.Constraint("Horizontal", 3),
    Sketcher.Constraint("DistanceY", 0, 2, 0, 1, Q("0.25 in")),
    Sketcher.Constraint("DistanceY", -1, 1, 0, 2, Q("0.4 in")),
    Sketcher.Constraint("DistanceX", 1, 1, 1, 2, Q("0.225 in")),
    Sketcher.Constraint("DistanceX", -1, 1, 1, 2, Q("1.75 in")),
])
pad12 = body12.newObject("PartDesign::Pad", "Pad011")
pad12.Profile = sketch18
pad12.Length = Q("0.005 in")
body13 = doc.addObject("PartDesign::Body", "Body012")

sketch19 = body13.newObject("Sketcher::SketchObject", "Sketch018")
sketch19.AttachmentSupport = (doc.getObject("XY_Plane012"), [""])
sketch19.MapMode = "FlatFace"
sketch19.AttachmentOffset = App.Placement(V(0, 0, 0.875 * 25.4), App.Rotation())
add_polygon(sketch19, [(38.735, -10.16), (38.735, -16.51), (44.45, -16.51), (44.45, -10.16)])
sketch19.addConstraint([
    Sketcher.Constraint("Vertical", 0),
    Sketcher.Constraint("Horizontal", 1),
    Sketcher.Constraint("Vertical", 2),
    Sketcher.Constraint("Horizontal", 3),
    Sketcher.Constraint("DistanceY", 0, 2, 0, 1, Q("0.25 in")),
    Sketcher.Constraint("DistanceY", 2, 2, -1, 1, Q("0.4 in")),
    Sketcher.Constraint("DistanceX", 1, 1, 1, 2, Q("0.225 in")),
    Sketcher.Constraint("DistanceX", -1, 1, 1, 2, Q("1.75 in")),
])
pad13 = body13.newObject("PartDesign::Pad", "Pad012")
pad13.Profile = sketch19
pad13.Length = Q("0.005 in")
body14 = doc.addObject("PartDesign::Body", "Body013")

sketch20 = body14.newObject("Sketcher::SketchObject", "Sketch019")
sketch20.AttachmentSupport = (doc.getObject("XY_Plane013"), [""])
sketch20.MapMode = "FlatFace"
sketch20.AttachmentOffset = App.Placement(V(0, 0, 0.875 * 25.4), App.Rotation())
add_polygon(sketch20, [(-16.51, 44.45), (-16.51, 38.735), (-10.16, 38.735), (-10.16, 44.45)])
sketch20.addConstraint([
    Sketcher.Constraint("Vertical", 0),
    Sketcher.Constraint("Horizontal", 1),
    Sketcher.Constraint("Vertical", 2),
    Sketcher.Constraint("Horizontal", 3),
    Sketcher.Constraint("DistanceX", 1, 1, 1, 2, Q("0.25 in")),
    Sketcher.Constraint("DistanceX", 1, 2, -1, 1, Q("0.4 in")),
    Sketcher.Constraint("DistanceY", 0, 2, 0, 1, Q("0.225 in")),
    Sketcher.Constraint("DistanceY", -1, 1, 2, 2, Q("1.75 in")),
])
pad14 = body14.newObject("PartDesign::Pad", "Pad013")
pad14.Profile = sketch20
pad14.Length = Q("0.005 in")
body15 = doc.addObject("PartDesign::Body", "Body014")

sketch21 = body15.newObject("Sketcher::SketchObject", "Sketch020")
sketch21.AttachmentSupport = (doc.getObject("XY_Plane014"), [""])
sketch21.MapMode = "FlatFace"
sketch21.AttachmentOffset = App.Placement(V(0, 0, 0.875 * 25.4), App.Rotation())
add_polygon(sketch21, [(10.16, 44.45), (10.16, 38.735), (16.51, 38.735), (16.51, 44.45)])
sketch21.addConstraint([
    Sketcher.Constraint("Vertical", 0),
    Sketcher.Constraint("Horizontal", 1),
    Sketcher.Constraint("Vertical", 2),
    Sketcher.Constraint("Horizontal", 3),
    Sketcher.Constraint("DistanceX", 1, 1, 1, 2, Q("0.25 in")),
    Sketcher.Constraint("DistanceX", -1, 1, 0, 2, Q("0.4 in")),
    Sketcher.Constraint("DistanceY", 0, 2, 0, 1, Q("0.225 in")),
    Sketcher.Constraint("DistanceY", -1, 1, 2, 2, Q("1.75 in")),
])
pad15 = body15.newObject("PartDesign::Pad", "Pad014")
pad15.Profile = sketch21
pad15.Length = Q("0.005 in")

doc.recompute()
